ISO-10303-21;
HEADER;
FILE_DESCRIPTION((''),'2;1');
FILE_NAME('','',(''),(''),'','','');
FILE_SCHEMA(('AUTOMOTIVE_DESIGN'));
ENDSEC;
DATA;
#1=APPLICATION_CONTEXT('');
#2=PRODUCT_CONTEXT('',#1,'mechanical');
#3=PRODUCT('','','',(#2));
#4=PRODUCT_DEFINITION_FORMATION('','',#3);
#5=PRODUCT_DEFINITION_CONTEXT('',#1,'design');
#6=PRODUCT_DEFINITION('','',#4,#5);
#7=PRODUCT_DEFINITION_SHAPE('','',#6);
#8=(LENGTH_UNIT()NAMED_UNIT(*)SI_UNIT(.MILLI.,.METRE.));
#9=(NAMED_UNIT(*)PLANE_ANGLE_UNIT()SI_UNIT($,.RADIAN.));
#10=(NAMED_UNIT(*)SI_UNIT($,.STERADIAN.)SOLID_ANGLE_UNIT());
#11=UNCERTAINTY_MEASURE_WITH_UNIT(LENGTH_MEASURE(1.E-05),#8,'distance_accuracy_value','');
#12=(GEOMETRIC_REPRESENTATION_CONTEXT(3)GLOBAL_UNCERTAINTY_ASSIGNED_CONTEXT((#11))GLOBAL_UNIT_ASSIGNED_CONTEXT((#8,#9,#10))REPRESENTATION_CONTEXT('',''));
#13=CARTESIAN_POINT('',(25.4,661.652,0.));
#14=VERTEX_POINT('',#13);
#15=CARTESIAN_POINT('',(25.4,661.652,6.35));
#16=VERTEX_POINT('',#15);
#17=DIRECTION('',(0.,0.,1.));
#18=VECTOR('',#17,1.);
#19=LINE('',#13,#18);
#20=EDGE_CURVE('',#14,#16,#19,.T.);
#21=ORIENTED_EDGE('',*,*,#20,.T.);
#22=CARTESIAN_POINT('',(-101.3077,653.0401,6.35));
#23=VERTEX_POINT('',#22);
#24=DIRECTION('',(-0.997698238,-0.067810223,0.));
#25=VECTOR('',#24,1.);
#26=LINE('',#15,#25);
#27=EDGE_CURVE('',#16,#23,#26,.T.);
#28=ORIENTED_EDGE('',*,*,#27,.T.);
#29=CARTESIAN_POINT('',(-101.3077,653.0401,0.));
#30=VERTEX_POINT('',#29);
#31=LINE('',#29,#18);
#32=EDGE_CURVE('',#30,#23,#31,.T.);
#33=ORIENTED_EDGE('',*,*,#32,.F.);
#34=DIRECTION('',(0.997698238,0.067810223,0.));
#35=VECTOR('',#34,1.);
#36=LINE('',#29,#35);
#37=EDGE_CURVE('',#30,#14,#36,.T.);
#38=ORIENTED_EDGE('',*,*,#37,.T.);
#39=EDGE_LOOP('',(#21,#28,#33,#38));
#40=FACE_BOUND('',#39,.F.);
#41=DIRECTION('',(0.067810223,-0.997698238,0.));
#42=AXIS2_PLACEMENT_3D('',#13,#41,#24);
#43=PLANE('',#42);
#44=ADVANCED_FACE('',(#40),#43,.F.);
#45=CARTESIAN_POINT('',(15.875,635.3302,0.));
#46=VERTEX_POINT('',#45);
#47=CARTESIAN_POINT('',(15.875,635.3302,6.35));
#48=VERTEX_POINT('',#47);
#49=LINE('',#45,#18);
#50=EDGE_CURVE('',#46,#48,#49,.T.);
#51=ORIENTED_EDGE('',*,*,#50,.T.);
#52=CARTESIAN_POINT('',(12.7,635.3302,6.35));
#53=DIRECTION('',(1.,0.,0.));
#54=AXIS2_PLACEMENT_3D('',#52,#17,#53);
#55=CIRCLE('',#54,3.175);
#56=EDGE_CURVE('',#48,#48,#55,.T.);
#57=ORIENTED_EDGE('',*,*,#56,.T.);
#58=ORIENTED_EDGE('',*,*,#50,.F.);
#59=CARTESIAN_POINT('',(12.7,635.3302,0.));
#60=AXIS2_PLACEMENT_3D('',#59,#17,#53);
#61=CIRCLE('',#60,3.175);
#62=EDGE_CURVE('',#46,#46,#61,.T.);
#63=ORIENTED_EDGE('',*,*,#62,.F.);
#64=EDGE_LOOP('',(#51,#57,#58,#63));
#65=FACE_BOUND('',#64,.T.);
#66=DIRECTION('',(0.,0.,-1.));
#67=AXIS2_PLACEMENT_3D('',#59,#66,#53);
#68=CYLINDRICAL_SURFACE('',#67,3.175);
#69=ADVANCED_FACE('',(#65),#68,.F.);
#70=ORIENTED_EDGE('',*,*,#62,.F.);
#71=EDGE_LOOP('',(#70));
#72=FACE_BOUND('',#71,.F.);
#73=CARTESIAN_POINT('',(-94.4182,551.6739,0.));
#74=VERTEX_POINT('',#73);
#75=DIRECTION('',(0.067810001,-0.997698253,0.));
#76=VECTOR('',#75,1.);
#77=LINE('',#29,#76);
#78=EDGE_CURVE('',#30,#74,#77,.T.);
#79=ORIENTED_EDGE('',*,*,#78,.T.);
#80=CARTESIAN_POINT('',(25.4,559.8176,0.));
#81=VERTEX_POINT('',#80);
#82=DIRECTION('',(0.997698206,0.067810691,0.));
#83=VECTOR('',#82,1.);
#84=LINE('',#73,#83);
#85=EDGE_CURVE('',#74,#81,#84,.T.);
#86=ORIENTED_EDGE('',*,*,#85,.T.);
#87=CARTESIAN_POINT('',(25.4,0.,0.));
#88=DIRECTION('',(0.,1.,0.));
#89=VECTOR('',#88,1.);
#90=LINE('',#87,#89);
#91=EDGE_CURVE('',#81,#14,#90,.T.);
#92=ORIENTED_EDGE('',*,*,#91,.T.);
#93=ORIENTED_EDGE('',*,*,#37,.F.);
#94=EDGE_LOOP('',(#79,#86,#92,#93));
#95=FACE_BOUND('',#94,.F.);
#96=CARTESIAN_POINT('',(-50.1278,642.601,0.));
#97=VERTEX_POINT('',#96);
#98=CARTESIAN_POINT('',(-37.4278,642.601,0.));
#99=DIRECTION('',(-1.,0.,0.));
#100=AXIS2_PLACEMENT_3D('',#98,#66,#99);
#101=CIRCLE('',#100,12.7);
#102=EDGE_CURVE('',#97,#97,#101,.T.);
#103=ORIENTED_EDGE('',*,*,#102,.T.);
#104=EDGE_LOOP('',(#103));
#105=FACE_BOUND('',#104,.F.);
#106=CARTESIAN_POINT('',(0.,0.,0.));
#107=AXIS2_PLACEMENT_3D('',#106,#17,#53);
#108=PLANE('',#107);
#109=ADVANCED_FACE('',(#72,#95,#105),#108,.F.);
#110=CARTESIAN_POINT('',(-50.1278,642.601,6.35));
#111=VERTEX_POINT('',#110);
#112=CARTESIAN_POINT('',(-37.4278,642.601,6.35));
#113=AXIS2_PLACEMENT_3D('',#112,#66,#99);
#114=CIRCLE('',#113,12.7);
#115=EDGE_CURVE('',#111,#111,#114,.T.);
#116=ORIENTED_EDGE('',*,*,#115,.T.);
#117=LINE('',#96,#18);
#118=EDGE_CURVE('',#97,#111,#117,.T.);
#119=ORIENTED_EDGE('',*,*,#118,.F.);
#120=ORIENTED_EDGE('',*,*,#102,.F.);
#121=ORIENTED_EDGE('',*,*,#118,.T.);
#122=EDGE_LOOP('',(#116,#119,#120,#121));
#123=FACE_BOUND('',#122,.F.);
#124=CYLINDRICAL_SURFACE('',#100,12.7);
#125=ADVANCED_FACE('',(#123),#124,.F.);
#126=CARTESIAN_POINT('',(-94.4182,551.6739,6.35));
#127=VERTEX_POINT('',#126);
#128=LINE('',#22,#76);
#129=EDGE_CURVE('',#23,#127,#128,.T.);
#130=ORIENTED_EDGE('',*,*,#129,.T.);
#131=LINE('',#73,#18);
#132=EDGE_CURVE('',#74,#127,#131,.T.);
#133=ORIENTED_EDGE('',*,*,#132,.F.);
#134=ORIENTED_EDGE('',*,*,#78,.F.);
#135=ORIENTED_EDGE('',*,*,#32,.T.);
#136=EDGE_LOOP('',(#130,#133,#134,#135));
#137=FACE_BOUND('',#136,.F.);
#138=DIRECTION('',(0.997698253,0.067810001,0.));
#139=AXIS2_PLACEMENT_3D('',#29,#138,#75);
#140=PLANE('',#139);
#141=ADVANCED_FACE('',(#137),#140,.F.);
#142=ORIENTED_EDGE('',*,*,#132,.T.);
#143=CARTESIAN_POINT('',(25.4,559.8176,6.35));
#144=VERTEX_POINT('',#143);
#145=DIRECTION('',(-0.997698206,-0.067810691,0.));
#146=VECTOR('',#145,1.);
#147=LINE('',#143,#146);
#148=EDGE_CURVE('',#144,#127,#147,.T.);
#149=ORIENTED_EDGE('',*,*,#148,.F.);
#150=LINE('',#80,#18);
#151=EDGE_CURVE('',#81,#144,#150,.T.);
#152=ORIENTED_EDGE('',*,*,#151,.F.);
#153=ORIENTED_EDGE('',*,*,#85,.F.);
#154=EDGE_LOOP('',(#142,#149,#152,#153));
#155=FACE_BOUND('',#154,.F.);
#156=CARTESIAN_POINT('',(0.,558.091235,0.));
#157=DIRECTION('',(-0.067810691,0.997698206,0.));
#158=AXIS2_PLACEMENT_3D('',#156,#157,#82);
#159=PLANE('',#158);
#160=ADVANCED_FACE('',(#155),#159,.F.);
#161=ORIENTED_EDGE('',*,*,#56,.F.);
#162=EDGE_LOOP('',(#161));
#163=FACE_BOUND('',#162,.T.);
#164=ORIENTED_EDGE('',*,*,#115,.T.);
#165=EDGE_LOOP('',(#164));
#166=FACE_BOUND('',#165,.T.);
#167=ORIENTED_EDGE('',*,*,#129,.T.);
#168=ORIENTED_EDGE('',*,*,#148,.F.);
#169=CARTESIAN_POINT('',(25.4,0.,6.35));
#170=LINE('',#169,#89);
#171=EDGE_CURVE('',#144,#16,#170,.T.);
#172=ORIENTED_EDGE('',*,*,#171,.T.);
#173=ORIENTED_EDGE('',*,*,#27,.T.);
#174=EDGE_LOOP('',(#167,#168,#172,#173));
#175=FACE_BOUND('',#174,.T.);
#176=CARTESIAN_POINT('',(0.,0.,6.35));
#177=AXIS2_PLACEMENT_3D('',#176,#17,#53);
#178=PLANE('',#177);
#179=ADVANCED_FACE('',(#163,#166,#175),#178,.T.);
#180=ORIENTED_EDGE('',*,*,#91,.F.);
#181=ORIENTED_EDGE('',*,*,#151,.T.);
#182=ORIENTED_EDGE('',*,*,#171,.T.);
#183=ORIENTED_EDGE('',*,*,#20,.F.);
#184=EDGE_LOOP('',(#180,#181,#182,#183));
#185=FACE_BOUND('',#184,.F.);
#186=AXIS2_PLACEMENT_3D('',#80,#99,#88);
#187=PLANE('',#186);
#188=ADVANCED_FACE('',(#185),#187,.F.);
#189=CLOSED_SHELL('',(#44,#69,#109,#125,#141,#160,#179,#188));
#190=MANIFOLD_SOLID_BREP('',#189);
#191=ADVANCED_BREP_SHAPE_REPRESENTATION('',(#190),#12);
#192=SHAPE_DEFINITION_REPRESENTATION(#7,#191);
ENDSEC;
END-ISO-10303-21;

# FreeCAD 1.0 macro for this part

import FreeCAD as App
import Part
import Sketcher

V = App.Vector
Q = App.Units.Quantity


def add_polygon(sketch, points):
    """Adds a closed chain of lines whose ends are joined by coincident constraints."""
    first, n = sketch.GeometryCount, len(points)
    for a, b in zip(points, points[1:] + points[:1]):
        sketch.addGeometry(Part.LineSegment(App.Vector(*a, 0), App.Vector(*b, 0)), False)
    for i in range(n):
        sketch.addConstraint(Sketcher.Constraint("Coincident", first + i, 2, first + (i + 1) % n, 1))

doc = App.newDocument("Part")
body = doc.addObject("PartDesign::Body", "Body")

# Sketch on XY plane
sketch1 = body.newObject("Sketcher::SketchObject", "Sketch")
sketch1.AttachmentSupport = (doc.getObject("XY_Plane"), [""])
sketch1.MapMode = "FlatFace"
add_polygon(sketch1, [(25.4, 559.8), (25.4, 661.7), (-101.3, 653), (-94.4, 551.7)])  # lines 0-3
sketch1.addGeometry(Part.Circle(V(12.7, 635.3, 0), V(0, 0, 1), 3.2), False)  # 4
sketch1.addConstraint([
    Sketcher.Constraint("Vertical", 0),
    Sketcher.Constraint("Perpendicular", 1, 2),
    Sketcher.Constraint("Perpendicular", 2, 3),
    Sketcher.Constraint("Distance", 1, Q("5 in")),
    Sketcher.Constraint("Distance", 2, Q("4 in")),
    Sketcher.Constraint("DistanceX", -1, 1, 0, 2, Q("1 in")),
    Sketcher.Constraint("Diameter", 4, Q("0.25 in")),
    Sketcher.Constraint("DistanceX", -1, 1, 4, 3, Q("0.5 in")),
    Sketcher.Constraint("DistanceY", -1, 1, 4, 3, Q("25.013 in")),
    Sketcher.Constraint("DistanceY", 0, 1, 0, 2, Q("101.8344 mm")),
    Sketcher.Constraint("DistanceY", -1, 1, 0, 2, Q("26.0493 in")),
])
pad1 = body.newObject("PartDesign::Pad", "Pad")
pad1.Profile = sketch1
pad1.Length = Q("0.25 in")

# Sketch on XY plane
sketch2 = body.newObject("Sketcher::SketchObject", "Sketch001")
sketch2.AttachmentSupport = (doc.getObject("XY_Plane"), [""])
sketch2.MapMode = "FlatFace"
sketch2.addGeometry(Part.Circle(V(-37, 643, 0), V(0, 0, 1), 13), False)
sketch2.addConstraint([
    Sketcher.Constraint("Diameter", 0, Q("1 in")),
    Sketcher.Constraint("DistanceX", 0, 3, -1, 1, Q("37.4278 mm")),
    Sketcher.Constraint("DistanceY", -1, 1, 0, 3, Q("642.601 mm")),
])
pocket1 = body.newObject("PartDesign::Pocket", "Pocket")
pocket1.Profile = sketch2
pocket1.Type = "ThroughAll"
pocket1.Reversed = True

doc.recompute()
